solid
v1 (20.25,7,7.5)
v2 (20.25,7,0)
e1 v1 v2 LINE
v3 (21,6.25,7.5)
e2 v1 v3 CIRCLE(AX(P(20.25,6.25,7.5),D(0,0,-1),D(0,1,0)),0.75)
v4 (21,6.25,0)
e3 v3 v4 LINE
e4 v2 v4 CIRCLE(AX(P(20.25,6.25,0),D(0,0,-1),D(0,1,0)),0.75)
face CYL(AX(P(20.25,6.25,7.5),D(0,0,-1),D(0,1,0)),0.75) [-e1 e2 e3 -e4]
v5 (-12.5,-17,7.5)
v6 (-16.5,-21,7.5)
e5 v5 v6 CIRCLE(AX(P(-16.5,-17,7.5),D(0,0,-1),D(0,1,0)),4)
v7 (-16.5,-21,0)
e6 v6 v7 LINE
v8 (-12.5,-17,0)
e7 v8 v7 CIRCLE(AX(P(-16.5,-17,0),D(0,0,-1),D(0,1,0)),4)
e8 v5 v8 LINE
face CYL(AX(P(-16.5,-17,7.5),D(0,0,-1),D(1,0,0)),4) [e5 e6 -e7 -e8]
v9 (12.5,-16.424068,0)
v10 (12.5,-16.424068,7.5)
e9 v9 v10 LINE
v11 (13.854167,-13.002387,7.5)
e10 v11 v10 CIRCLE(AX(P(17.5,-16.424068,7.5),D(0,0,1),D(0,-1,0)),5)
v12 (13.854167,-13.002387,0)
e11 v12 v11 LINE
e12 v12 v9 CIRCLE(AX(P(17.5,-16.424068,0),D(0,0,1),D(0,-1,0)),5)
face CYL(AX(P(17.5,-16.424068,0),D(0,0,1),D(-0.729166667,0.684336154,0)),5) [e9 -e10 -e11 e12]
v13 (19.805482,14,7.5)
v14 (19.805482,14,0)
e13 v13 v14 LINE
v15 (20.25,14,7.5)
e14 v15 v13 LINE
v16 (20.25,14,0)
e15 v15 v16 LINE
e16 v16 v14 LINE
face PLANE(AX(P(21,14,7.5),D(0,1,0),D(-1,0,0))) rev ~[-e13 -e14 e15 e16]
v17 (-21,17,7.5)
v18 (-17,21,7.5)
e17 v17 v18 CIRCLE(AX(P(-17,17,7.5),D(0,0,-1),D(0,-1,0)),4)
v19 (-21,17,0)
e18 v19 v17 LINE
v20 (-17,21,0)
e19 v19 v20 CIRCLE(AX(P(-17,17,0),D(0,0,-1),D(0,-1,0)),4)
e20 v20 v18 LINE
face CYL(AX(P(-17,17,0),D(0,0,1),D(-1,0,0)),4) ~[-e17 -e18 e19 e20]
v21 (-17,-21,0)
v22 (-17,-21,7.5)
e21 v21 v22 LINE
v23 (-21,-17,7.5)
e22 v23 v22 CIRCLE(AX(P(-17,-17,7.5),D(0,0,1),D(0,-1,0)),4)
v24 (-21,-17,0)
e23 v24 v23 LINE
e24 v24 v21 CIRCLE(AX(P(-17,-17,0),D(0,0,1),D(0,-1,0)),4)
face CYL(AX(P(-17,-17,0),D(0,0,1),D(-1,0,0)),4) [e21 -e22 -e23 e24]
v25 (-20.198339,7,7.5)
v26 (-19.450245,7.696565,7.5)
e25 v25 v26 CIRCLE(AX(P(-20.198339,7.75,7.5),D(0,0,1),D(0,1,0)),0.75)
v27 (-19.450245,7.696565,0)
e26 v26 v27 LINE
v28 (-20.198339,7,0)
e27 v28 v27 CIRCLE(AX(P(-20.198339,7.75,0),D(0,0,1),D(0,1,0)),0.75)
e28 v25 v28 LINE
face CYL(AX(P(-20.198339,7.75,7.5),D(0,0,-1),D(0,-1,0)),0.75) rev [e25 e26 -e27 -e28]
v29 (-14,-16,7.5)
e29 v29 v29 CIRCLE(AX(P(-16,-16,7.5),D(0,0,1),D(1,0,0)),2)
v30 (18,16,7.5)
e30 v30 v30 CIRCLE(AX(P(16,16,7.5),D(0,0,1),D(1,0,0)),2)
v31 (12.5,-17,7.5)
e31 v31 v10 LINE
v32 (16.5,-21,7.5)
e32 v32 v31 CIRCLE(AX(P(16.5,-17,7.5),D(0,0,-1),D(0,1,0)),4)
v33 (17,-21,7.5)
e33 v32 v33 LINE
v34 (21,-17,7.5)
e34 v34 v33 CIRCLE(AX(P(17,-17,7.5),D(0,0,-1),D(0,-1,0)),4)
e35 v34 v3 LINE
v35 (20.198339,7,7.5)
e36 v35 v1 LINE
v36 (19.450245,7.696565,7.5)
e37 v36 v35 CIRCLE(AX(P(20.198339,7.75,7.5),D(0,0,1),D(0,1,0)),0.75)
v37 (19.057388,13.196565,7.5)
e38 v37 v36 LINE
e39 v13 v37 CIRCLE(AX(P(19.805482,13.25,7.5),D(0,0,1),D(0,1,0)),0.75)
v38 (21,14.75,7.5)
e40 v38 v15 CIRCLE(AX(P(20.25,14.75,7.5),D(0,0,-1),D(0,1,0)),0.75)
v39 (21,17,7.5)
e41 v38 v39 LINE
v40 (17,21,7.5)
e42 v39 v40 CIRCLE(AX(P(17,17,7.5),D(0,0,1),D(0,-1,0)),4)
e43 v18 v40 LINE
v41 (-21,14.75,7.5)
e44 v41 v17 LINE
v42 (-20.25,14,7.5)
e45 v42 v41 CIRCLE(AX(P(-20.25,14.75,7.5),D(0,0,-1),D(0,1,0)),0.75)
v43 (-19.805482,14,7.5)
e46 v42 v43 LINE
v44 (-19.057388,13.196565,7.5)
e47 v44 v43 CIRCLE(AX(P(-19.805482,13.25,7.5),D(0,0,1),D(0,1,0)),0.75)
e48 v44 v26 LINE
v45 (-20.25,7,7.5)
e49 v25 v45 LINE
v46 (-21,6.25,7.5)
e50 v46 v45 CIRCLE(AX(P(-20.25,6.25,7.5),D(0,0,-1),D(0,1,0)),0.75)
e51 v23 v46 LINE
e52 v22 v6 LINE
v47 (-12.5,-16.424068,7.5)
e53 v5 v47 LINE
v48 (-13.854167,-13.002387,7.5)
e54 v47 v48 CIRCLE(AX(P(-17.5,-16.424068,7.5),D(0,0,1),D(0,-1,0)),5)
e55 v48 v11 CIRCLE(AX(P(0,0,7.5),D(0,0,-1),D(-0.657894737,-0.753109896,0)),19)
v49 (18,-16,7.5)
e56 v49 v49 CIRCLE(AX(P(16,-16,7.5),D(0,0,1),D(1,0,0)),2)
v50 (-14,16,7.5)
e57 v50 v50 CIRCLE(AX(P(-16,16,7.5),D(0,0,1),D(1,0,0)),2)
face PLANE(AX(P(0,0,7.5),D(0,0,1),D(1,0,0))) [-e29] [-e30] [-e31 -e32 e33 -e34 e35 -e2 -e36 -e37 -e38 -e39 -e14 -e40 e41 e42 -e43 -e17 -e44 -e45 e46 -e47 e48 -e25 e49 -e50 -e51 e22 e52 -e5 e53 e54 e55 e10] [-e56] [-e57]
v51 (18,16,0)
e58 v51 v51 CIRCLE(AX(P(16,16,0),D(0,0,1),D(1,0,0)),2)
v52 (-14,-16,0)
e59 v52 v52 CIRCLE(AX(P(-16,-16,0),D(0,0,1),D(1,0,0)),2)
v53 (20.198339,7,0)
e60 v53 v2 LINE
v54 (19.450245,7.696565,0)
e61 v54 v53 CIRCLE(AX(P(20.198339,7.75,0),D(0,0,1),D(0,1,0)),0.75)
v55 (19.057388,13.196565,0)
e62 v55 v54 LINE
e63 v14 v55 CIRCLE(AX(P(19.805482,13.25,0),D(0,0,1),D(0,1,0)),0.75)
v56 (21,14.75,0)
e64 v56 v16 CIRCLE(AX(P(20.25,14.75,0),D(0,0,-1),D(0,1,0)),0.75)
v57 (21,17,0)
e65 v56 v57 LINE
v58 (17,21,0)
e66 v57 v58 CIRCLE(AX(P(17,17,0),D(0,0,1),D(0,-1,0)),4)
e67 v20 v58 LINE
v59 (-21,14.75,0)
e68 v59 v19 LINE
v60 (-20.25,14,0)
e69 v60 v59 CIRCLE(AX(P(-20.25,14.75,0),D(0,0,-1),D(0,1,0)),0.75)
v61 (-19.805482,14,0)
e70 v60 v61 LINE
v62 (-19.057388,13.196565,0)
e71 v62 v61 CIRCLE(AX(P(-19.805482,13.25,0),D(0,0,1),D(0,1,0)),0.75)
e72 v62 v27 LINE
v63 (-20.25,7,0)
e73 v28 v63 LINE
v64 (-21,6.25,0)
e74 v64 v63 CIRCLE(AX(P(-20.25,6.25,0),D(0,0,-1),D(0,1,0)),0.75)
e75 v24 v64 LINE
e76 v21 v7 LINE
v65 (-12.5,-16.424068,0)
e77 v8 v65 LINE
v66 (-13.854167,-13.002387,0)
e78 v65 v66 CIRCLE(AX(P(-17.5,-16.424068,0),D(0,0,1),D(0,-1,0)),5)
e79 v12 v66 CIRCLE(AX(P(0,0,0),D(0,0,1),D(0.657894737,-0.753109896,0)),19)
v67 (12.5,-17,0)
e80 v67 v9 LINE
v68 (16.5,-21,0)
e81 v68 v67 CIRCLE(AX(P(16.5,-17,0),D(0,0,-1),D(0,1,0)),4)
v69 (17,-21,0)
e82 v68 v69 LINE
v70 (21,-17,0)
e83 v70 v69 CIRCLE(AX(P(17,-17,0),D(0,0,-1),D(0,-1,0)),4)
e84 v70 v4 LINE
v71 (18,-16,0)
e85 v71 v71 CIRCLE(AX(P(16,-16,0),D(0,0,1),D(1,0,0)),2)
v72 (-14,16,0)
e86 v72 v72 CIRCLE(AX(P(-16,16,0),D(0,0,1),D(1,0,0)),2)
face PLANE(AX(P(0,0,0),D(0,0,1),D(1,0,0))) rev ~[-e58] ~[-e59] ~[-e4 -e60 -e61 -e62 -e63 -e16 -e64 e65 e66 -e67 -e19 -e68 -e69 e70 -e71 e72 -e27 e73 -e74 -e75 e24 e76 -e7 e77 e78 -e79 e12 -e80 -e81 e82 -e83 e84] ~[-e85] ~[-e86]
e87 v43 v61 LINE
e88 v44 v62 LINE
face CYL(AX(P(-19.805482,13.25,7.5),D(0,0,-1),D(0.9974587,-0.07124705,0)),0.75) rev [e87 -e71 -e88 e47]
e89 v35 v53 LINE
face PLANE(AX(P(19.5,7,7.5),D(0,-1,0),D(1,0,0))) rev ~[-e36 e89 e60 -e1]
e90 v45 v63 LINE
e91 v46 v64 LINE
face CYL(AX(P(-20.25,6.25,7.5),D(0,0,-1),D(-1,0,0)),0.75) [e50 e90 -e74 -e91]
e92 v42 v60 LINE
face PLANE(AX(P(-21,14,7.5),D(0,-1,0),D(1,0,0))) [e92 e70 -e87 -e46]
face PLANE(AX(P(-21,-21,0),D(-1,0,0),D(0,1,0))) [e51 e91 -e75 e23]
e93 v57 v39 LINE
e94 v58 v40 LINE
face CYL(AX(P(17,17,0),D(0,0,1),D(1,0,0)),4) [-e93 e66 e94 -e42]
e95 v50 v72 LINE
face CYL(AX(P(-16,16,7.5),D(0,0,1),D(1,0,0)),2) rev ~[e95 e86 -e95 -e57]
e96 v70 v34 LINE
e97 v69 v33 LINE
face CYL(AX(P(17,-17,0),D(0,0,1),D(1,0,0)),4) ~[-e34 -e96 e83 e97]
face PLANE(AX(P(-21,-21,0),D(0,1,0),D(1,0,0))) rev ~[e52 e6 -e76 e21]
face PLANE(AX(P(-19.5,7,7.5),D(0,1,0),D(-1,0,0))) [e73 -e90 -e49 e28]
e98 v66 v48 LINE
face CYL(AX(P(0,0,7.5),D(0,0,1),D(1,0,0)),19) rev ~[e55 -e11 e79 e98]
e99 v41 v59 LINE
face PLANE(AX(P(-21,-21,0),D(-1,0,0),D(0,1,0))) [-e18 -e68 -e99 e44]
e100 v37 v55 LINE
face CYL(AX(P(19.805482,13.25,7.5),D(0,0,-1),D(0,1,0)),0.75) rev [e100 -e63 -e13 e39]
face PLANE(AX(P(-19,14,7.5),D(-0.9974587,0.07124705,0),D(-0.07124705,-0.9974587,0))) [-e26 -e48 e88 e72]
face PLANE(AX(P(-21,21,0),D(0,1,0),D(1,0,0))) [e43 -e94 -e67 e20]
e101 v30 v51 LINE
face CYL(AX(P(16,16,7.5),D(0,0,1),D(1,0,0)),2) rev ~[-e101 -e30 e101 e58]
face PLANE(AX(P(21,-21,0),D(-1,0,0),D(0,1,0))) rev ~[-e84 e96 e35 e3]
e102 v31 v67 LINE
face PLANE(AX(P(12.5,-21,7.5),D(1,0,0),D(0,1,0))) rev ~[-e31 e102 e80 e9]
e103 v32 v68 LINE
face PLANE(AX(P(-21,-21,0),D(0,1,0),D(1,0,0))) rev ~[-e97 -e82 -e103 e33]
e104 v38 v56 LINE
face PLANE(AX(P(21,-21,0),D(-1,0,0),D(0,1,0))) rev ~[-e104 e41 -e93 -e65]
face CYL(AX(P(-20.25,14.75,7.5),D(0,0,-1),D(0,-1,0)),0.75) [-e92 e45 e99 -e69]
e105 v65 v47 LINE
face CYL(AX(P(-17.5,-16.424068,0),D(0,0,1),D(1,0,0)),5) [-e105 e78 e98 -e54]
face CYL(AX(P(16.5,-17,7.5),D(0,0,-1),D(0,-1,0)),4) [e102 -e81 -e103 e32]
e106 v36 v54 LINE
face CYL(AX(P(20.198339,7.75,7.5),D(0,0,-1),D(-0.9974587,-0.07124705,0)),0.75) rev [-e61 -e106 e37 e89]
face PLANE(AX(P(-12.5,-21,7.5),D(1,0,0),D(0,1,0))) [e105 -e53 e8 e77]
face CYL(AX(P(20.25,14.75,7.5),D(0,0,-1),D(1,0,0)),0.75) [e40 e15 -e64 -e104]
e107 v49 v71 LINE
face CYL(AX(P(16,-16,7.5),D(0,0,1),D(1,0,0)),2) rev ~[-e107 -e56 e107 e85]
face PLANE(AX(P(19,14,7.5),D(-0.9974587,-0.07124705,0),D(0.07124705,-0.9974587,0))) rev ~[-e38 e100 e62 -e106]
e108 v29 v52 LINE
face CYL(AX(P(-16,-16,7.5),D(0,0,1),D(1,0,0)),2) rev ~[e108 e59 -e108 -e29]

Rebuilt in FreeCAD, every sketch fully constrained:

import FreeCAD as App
import Part
import Sketcher
from FreeCAD import Vector


def edges_at(feature, points):
    """Names of the edges that pass closest to the given points."""
    edges = feature.Shape.Edges
    near = lambda p: min(range(len(edges)), key=lambda i: edges[i].distToShape(Part.Vertex(*p))[0])
    return sorted({f"Edge{near(p) + 1}" for p in points})


def add_polygon(sketch, points):
    """Adds a closed chain of lines whose ends are joined by coincident constraints."""
    first, n = sketch.GeometryCount, len(points)
    for a, b in zip(points, points[1:] + points[:1]):
        sketch.addGeometry(Part.LineSegment(App.Vector(*a, 0), App.Vector(*b, 0)), False)
    for i in range(n):
        sketch.addConstraint(Sketcher.Constraint("Coincident", first + i, 2, first + (i + 1) % n, 1))

doc = App.newDocument("Part")
body = doc.addObject("PartDesign::Body", "Body")

# Sketch on XY plane
sketch1 = body.newObject("Sketcher::SketchObject", "Sketch")
sketch1.AttachmentSupport = (doc.getObject("XY_Plane"), [""])
sketch1.MapMode = "FlatFace"
add_polygon(sketch1, [(-21, 21), (-21, -21), (21, -21), (21, 21)])  # lines 0-3
sketch1.addConstraint([
    Sketcher.Constraint("Vertical", 0),
    Sketcher.Constraint("Horizontal", 1),
    Sketcher.Constraint("Vertical", 2),
    Sketcher.Constraint("Horizontal", 3),
    Sketcher.Constraint("Symmetric", 0, 2, 2, 2, -1, 1),
    Sketcher.Constraint("Equal", 3, 0),
    Sketcher.Constraint("DistanceX", 1, 1, 1, 2, 42.0),
])
pad1 = body.newObject("PartDesign::Pad", "Pad")
pad1.Profile = sketch1
pad1.Length = 7.5

# Sketch on XY plane
sketch2 = body.newObject("Sketcher::SketchObject", "Sketch001")
sketch2.AttachmentSupport = (doc.getObject("XY_Plane"), [""])
sketch2.MapMode = "FlatFace"
sketch2.AttachmentOffset = App.Placement(Vector(0, 0, 7.5), App.Rotation())
sketch2.addGeometry(Part.Circle(Vector(0, 0, 0), Vector(0, 0, 1), 19), False)
sketch2.addConstraint([
    Sketcher.Constraint("Coincident", 0, 3, -1, 1),
    Sketcher.Constraint("Diameter", 0, 38.0),
])
pocket1 = body.newObject("PartDesign::Pocket", "Pocket")
pocket1.Profile = sketch2
pocket1.Type = "ThroughAll"

# Sketch on XY plane
sketch3 = body.newObject("Sketcher::SketchObject", "Sketch002")
sketch3.AttachmentSupport = (doc.getObject("XY_Plane"), [""])
sketch3.MapMode = "FlatFace"
sketch3.AttachmentOffset = App.Placement(Vector(0, 0, 7.5), App.Rotation())
sketch3.addGeometry([
    Part.Circle(Vector(-16, 16, 0), Vector(0, 0, 1), 2),
    Part.Circle(Vector(16, 16, 0), Vector(0, 0, 1), 2),
    Part.Circle(Vector(16, -16, 0), Vector(0, 0, 1), 2),
    Part.Circle(Vector(-16, -16, 0), Vector(0, 0, 1), 2),
], False)
sketch3.addConstraint([
    Sketcher.Constraint("Equal", 0, 1),
    Sketcher.Constraint("Equal", 1, 2),
    Sketcher.Constraint("Equal", 2, 3),
    Sketcher.Constraint("Symmetric", 0, 3, 2, 3, -1, 1),
    Sketcher.Constraint("Symmetric", 1, 3, 3, 3, -1, 1),
    Sketcher.Constraint("Symmetric", 0, 3, 1, 3, -2),
    Sketcher.Constraint("Diameter", 0, 4.0),
    Sketcher.Constraint("DistanceX", 0, 3, -1, 1, 16.0),
    Sketcher.Constraint("DistanceY", -1, 1, 0, 3, 16.0),
])
pocket2 = body.newObject("PartDesign::Pocket", "Pocket001")
pocket2.Profile = sketch3
pocket2.Type = "ThroughAll"

# Sketch on XY plane
sketch4 = body.newObject("Sketcher::SketchObject", "Sketch003")
sketch4.AttachmentSupport = (doc.getObject("XY_Plane"), [""])
sketch4.MapMode = "FlatFace"
sketch4.AttachmentOffset = App.Placement(Vector(0, 0, 7.5), App.Rotation())
add_polygon(sketch4, [(-12, 12), (-12, -21), (12, -21), (12, 12)])  # lines 0-3
sketch4.addConstraint([
    Sketcher.Constraint("Vertical", 0),
    Sketcher.Constraint("Horizontal", 1),
    Sketcher.Constraint("Vertical", 2),
    Sketcher.Constraint("Horizontal", 3),
    Sketcher.Constraint("DistanceX", 1, 1, 1, 2, 25.0),
    Sketcher.Constraint("DistanceY", 0, 2, 0, 1, 33.5),
    Sketcher.Constraint("DistanceY", 0, 2, -1, 1, 21.0),
    Sketcher.Constraint("DistanceX", 0, 2, -1, 1, 12.5),
])
pocket3 = body.newObject("PartDesign::Pocket", "Pocket002")
pocket3.Profile = sketch4
pocket3.Type = "ThroughAll"
doc.recompute()

fillet = body.newObject("PartDesign::Fillet", "Fillet")
fillet.Base = (pocket3, edges_at(pocket3, [
    (-12.5, -21, 3.75),
    (12.5, -21, 3.75),
    (-21, 21, 3.75),
    (21, 21, 3.75),
    (21, -21, 3.75),
    (-21, -21, 3.75),
]))
fillet.Radius = 4
doc.recompute()

fillet2 = body.newObject("PartDesign::Fillet", "Fillet001")
fillet2.Base = (fillet, edges_at(fillet, [(12.5, -14.309, 3.75), (-12.5, -14.309, 3.75)]))
fillet2.Radius = 5

# Sketch on XY plane
sketch5 = body.newObject("Sketcher::SketchObject", "Sketch004")
sketch5.AttachmentSupport = (doc.getObject("XY_Plane"), [""])
sketch5.MapMode = "FlatFace"
sketch5.AttachmentOffset = App.Placement(Vector(0, 0, 7.5), App.Rotation())
add_polygon(sketch5, [(-21, 14), (-21, 7), (-19.5, 7), (-19, 14)])  # lines 0-3
add_polygon(sketch5, [(21, 14), (19, 14), (19.5, 7), (21, 7)])  # lines 4-7
sketch5.addConstraint([
    Sketcher.Constraint("Vertical", 0),
    Sketcher.Constraint("Horizontal", 1),
    Sketcher.Constraint("Horizontal", 3),
    Sketcher.Constraint("Horizontal", 4),
    Sketcher.Constraint("Horizontal", 6),
    Sketcher.Constraint("Vertical", 7),
    Sketcher.Constraint("Symmetric", 2, 2, 4, 2, -2),
    Sketcher.Constraint("Symmetric", 1, 2, 5, 2, -2),
    Sketcher.Constraint("Equal", 3, 4),
    Sketcher.Constraint("DistanceX", 3, 2, 3, 1, 2.0),
    Sketcher.Constraint("DistanceY", 0, 2, 0, 1, 7.0),
    Sketcher.Constraint("DistanceX", 1, 1, 1, 2, 1.5),
    Sketcher.Constraint("DistanceX", 0, 2, -1, 1, 21.0),
    Sketcher.Constraint("DistanceY", -1, 1, 0, 2, 7.0),
])
pocket4 = body.newObject("PartDesign::Pocket", "Pocket003")
pocket4.Profile = sketch5
pocket4.Type = "ThroughAll"
doc.recompute()

fillet3 = body.newObject("PartDesign::Fillet", "Fillet002")
fillet3.Base = (pocket4, edges_at(pocket4, [
    (-19.5, 7, 3.75),
    (-21, 7, 3.75),
    (-21, 14, 3.75),
    (-19, 14, 3.75),
    (21, 14, 3.75),
    (21, 7, 3.75),
    (19.5, 7, 3.75),
    (19, 14, 3.75),
]))
fillet3.Radius = 0.75

doc.recompute()
